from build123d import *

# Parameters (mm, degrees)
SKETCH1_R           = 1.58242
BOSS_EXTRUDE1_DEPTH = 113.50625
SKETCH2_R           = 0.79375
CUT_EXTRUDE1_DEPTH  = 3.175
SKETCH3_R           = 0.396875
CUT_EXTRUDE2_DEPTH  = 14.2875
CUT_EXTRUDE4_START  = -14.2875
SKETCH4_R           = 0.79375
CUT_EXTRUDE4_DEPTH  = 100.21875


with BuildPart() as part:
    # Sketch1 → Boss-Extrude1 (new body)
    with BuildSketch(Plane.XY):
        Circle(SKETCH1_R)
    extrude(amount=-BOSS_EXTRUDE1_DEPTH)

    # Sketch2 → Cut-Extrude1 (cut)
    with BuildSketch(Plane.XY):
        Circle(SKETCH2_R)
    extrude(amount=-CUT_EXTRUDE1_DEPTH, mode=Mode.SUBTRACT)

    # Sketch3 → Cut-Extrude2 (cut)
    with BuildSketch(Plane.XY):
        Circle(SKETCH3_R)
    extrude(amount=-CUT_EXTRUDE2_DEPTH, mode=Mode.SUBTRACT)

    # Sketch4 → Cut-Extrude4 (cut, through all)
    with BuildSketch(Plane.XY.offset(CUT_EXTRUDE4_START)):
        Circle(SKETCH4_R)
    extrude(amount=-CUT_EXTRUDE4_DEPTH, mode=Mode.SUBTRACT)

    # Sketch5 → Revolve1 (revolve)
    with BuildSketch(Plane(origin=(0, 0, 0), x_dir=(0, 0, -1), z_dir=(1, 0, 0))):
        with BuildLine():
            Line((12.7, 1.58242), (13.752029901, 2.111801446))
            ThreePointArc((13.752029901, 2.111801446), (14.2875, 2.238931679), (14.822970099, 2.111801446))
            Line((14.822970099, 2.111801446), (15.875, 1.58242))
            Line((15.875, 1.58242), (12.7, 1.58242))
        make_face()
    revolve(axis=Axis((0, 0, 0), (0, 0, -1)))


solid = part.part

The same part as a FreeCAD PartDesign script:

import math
import FreeCAD as App
import Part
import Sketcher

V = App.Vector
Q = App.Units.Quantity

doc = App.newDocument("Part")
body = doc.addObject("PartDesign::Body", "Body")

# Sketch on XY plane
sketch1 = body.newObject("Sketcher::SketchObject", "Sketch")
sketch1.AttachmentSupport = (doc.getObject("XY_Plane"), [""])
sketch1.MapMode = "FlatFace"
sketch1.addGeometry(Part.Circle(V(0, 0, 0), V(0, 0, 1), 1.6), False)
sketch1.addConstraint(Sketcher.Constraint("Coincident", 0, 3, -1, 1))
sketch1.addConstraint(Sketcher.Constraint("Diameter", 0, Q("0.1246 in")))
pad1 = body.newObject("PartDesign::Pad", "Pad")
pad1.Profile = sketch1
pad1.Length = Q("4.46875 in")
pad1.Reversed = True

# Sketch on XY plane
sketch2 = body.newObject("Sketcher::SketchObject", "Sketch001")
sketch2.AttachmentSupport = (doc.getObject("XY_Plane"), [""])
sketch2.MapMode = "FlatFace"
sketch2.addGeometry(Part.Circle(V(0, 0, 0), V(0, 0, 1), 0.8), False)
sketch2.addConstraint(Sketcher.Constraint("Coincident", 0, 3, -1, 1))
sketch2.addConstraint(Sketcher.Constraint("Diameter", 0, Q("0.0625 in")))
pocket1 = body.newObject("PartDesign::Pocket", "Pocket")
pocket1.Profile = sketch2
pocket1.Length = Q("0.125 in")

# Sketch on XY plane
sketch3 = body.newObject("Sketcher::SketchObject", "Sketch002")
sketch3.AttachmentSupport = (doc.getObject("XY_Plane"), [""])
sketch3.MapMode = "FlatFace"
sketch3.addGeometry(Part.Circle(V(0, 0, 0), V(0, 0, 1), 0.4), False)
sketch3.addConstraint(Sketcher.Constraint("Coincident", 0, 3, -1, 1))
sketch3.addConstraint(Sketcher.Constraint("Diameter", 0, Q("0.03125 in")))
pocket2 = body.newObject("PartDesign::Pocket", "Pocket001")
pocket2.Profile = sketch3
pocket2.Length = Q("0.5625 in")

# Sketch on XY plane
sketch4 = body.newObject("Sketcher::SketchObject", "Sketch003")
sketch4.AttachmentSupport = (doc.getObject("XY_Plane"), [""])
sketch4.MapMode = "FlatFace"
sketch4.AttachmentOffset = App.Placement(V(0, 0, -0.5625 * 25.4), App.Rotation())
sketch4.addGeometry(Part.Circle(V(0, 0, 0), V(0, 0, 1), 0.8), False)
sketch4.addConstraint(Sketcher.Constraint("Coincident", 0, 3, -1, 1))
sketch4.addConstraint(Sketcher.Constraint("Diameter", 0, Q("0.0625 in")))
pocket3 = body.newObject("PartDesign::Pocket", "Pocket002")
pocket3.Profile = sketch4
pocket3.Type = "ThroughAll"

# Sketch on YZ plane
sketch5 = body.newObject("Sketcher::SketchObject", "Sketch004")
sketch5.AttachmentSupport = (doc.getObject("YZ_Plane"), [""])
sketch5.MapMode = "FlatFace"
sketch5.addGeometry(Part.LineSegment(V(2.1, -13.8, 0), V(1.6, -12.7, 0)), False)
sketch5.addGeometry(Part.LineSegment(V(1.6, -12.7, 0), V(1.6, -15.9, 0)), False)
sketch5.addGeometry(Part.LineSegment(V(1.6, -15.9, 0), V(2.1, -14.8, 0)), False)
sketch5.addGeometry(Part.ArcOfCircle(Part.Circle(V(1, -14.3, 0), V(0, 0, 1), 1.2), math.radians(-27), math.radians(27)), False)
sketch5.addConstraint(Sketcher.Constraint("Coincident", 0, 2, 1, 1))
sketch5.addConstraint(Sketcher.Constraint("Coincident", 1, 2, 2, 1))
sketch5.addConstraint(Sketcher.Constraint("Tangent", 2, 2, 3, 1))
sketch5.addConstraint(Sketcher.Constraint("Tangent", 3, 2, 0, 1))
sketch5.addConstraint(Sketcher.Constraint("Vertical", 1))
sketch5.addConstraint(Sketcher.Constraint("Vertical", 2, 2, 3, 2))
sketch5.addConstraint(Sketcher.Constraint("DistanceY", 0, 2, -1, 1, Q("0.5 in")))
sketch5.addConstraint(Sketcher.Constraint("Radius", 3, Q("0.0469 in")))
sketch5.addConstraint(Sketcher.Constraint("DistanceY", 1, 2, 1, 1, Q("0.125 in")))
sketch5.addConstraint(Sketcher.Constraint("DistanceX", -1, 1, 0, 2, Q("0.0623 in")))
sketch5.addConstraint(Sketcher.Constraint("DistanceX", -1, 1, 2, 2, 2.111801))
revolution = body.newObject("PartDesign::Revolution", "Revolution")
revolution.Profile = sketch5
revolution.ReferenceAxis = (sketch5, ["V_Axis"])
revolution.Angle = 360

doc.recompute()
